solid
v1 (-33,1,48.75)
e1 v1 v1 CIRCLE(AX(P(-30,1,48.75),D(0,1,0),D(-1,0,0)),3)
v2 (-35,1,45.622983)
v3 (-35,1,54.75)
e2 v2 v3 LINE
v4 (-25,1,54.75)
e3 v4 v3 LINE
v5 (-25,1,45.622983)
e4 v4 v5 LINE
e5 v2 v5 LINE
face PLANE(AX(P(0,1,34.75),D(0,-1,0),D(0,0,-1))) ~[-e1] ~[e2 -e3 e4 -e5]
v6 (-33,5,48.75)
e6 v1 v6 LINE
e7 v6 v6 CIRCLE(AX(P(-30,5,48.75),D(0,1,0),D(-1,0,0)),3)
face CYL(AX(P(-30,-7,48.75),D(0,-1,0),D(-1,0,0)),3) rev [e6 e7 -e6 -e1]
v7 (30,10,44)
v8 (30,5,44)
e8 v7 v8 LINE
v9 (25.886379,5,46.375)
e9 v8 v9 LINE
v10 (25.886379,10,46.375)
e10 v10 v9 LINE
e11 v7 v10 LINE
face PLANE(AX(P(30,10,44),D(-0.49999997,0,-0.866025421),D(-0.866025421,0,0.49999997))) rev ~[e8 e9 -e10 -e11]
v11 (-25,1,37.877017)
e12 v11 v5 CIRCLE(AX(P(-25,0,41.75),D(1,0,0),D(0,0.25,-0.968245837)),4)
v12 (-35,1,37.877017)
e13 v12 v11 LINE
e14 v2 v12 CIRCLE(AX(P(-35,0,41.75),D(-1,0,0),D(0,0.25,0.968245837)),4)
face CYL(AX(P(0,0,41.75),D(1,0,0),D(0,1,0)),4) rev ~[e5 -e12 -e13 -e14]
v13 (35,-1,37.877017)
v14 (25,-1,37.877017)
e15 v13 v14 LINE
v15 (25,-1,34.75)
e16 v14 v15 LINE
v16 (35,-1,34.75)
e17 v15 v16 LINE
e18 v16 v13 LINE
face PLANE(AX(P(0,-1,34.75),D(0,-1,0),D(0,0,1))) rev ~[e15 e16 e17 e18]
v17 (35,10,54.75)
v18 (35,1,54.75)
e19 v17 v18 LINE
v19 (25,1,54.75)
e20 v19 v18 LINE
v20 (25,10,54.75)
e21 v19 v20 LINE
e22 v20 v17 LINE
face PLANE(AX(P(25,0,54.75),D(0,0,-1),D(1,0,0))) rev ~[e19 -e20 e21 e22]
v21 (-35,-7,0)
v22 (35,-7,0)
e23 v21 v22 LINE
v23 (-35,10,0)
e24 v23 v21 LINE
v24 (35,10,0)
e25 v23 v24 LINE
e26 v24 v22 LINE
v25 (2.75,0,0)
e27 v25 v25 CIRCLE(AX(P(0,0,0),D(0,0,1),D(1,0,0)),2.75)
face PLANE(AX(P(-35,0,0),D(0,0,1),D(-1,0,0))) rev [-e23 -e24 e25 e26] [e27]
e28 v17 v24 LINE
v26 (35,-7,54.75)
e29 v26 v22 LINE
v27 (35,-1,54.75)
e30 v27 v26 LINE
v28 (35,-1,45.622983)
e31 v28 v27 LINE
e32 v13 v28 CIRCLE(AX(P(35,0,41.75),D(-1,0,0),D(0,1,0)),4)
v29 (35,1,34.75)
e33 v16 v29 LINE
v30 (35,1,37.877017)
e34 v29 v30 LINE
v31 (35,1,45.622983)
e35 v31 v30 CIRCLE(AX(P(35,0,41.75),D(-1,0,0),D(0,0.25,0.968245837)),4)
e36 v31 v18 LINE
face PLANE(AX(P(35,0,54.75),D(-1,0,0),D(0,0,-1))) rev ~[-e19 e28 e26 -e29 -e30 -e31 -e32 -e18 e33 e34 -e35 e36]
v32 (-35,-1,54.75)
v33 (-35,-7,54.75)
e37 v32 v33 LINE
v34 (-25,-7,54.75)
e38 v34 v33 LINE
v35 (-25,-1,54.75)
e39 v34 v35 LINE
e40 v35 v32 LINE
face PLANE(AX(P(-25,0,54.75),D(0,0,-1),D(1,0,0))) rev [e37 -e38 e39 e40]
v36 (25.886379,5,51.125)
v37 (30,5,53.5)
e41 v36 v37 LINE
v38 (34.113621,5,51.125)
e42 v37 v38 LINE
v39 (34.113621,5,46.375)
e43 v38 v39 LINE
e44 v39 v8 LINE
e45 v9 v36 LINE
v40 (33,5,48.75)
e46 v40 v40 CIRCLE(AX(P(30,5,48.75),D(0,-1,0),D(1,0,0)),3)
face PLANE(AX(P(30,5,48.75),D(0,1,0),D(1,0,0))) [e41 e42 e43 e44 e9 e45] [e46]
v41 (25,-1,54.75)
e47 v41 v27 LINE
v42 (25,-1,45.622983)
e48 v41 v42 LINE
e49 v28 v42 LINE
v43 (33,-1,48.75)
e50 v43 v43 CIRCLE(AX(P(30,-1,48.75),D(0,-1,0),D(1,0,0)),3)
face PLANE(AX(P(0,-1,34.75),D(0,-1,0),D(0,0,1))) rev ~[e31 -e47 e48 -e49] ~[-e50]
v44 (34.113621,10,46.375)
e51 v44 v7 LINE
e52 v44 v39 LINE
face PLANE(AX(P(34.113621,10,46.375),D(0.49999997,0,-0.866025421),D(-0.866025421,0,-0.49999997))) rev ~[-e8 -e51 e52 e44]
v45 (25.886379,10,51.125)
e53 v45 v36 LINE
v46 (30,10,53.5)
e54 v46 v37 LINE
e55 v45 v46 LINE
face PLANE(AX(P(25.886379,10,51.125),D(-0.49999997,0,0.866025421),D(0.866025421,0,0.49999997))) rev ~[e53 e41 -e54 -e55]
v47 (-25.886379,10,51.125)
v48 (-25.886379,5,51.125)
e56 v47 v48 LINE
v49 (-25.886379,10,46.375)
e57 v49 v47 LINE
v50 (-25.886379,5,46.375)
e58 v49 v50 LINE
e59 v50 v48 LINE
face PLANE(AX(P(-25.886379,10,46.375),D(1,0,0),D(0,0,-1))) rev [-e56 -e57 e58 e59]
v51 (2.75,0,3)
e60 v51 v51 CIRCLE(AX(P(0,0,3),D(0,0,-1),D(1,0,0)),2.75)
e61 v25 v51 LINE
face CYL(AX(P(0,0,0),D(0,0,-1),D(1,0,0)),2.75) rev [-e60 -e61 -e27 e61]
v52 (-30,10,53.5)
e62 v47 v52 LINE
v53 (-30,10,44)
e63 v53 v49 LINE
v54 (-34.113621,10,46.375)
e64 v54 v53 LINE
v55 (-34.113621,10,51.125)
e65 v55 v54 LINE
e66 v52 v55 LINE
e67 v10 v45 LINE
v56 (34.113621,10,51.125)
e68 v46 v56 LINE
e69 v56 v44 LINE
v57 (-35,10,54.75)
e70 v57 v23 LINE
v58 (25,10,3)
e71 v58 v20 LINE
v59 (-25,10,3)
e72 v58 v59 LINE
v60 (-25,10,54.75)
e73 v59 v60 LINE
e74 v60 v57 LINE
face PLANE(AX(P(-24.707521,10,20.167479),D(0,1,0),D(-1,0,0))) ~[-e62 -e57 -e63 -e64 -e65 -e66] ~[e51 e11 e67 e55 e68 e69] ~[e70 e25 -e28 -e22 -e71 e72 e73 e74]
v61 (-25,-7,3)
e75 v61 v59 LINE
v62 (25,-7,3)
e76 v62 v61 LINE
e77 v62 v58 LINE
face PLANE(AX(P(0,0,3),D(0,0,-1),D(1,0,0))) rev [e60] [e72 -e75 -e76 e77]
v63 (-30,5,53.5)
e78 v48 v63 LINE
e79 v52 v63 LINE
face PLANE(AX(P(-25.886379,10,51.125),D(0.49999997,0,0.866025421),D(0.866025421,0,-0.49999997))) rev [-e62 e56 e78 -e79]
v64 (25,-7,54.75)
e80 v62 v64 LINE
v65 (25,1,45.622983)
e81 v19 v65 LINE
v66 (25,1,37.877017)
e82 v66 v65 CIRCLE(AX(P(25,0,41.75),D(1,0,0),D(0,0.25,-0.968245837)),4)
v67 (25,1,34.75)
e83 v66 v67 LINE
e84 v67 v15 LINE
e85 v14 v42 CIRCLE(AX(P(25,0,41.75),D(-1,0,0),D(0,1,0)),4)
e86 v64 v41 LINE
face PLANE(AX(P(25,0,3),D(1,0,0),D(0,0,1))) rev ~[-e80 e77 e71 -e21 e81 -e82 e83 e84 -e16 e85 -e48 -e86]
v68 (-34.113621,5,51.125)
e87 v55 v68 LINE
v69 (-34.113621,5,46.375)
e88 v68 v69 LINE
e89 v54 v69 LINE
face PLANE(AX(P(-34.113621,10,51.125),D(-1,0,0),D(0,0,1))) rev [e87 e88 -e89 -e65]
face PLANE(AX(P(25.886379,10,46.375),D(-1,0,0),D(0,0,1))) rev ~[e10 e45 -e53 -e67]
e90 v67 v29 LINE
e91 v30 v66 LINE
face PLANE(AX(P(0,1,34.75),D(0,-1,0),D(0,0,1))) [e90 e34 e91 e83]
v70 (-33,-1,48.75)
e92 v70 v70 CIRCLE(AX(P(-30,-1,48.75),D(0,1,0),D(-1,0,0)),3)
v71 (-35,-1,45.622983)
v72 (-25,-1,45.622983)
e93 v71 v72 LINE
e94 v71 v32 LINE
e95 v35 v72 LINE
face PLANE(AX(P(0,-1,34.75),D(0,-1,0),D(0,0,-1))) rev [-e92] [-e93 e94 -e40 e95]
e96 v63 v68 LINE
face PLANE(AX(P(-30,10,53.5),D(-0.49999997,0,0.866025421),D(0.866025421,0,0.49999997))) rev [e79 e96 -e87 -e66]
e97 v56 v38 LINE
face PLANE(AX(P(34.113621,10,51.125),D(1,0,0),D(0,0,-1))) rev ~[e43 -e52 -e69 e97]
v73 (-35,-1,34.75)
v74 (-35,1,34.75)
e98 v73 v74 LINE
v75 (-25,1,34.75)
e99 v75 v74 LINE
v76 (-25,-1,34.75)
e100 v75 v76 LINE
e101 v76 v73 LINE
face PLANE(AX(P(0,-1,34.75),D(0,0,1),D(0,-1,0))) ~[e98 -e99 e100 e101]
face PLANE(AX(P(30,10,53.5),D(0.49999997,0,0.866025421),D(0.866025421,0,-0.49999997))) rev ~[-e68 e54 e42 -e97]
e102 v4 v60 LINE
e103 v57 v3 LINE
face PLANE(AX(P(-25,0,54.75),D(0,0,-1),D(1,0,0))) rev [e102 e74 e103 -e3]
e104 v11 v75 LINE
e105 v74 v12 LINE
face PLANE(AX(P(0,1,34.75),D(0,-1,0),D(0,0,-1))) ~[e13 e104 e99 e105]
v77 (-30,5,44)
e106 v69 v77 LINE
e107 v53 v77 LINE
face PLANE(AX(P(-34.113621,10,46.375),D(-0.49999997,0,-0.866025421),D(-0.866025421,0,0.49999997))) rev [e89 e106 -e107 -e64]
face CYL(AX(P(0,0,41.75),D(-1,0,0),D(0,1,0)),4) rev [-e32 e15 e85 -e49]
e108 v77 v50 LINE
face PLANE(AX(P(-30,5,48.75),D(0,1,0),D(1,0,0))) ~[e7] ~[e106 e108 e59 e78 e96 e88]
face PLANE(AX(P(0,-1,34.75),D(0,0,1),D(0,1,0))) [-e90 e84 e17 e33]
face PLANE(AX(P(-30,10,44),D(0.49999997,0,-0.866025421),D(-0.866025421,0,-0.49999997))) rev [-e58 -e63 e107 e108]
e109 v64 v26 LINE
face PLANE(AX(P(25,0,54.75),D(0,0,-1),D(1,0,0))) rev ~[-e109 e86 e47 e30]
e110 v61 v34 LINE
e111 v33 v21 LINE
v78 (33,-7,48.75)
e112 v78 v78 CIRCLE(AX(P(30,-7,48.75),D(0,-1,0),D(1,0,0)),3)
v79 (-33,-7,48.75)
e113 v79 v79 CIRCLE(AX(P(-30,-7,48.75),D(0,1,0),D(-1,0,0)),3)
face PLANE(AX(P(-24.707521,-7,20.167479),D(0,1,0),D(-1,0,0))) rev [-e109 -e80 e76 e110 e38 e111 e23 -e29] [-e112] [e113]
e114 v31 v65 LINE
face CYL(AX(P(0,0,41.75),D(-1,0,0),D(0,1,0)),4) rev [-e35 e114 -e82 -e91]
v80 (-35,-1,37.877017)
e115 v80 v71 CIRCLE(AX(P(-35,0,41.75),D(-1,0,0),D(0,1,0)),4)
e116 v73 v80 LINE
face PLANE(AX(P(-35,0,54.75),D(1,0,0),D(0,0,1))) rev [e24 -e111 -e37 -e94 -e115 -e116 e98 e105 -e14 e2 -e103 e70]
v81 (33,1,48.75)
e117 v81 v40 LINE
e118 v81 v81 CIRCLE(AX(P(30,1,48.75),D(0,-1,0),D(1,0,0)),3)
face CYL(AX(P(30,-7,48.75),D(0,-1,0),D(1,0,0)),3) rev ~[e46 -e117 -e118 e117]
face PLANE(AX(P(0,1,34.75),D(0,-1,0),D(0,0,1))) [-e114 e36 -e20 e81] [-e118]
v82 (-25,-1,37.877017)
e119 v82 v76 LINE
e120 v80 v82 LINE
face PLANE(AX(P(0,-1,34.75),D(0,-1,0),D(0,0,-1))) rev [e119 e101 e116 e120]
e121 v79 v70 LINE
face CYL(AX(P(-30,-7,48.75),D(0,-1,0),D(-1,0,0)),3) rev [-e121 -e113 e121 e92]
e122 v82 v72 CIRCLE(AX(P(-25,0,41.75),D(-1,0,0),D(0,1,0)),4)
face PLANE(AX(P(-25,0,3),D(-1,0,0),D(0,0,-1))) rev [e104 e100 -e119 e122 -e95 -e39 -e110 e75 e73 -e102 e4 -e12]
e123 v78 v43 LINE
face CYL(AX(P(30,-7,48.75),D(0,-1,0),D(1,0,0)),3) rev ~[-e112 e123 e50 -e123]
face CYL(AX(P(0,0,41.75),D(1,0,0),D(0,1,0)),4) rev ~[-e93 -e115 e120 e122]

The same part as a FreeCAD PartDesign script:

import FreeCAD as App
import Part
import Sketcher
Q = App.Units.Quantity


def add_polygon(sketch, points):
    """Adds a closed chain of lines whose ends are joined by coincident constraints."""
    first, n = sketch.GeometryCount, len(points)
    for a, b in zip(points, points[1:] + points[:1]):
        sketch.addGeometry(Part.LineSegment(App.Vector(*a, 0), App.Vector(*b, 0)), False)
    for i in range(n):
        sketch.addConstraint(Sketcher.Constraint("Coincident", first + i, 2, first + (i + 1) % n, 1))

doc = App.newDocument("Part")
body = doc.addObject("PartDesign::Body", "Body")

sketch1 = body.newObject("Sketcher::SketchObject", "Sketch")
sketch1.AttachmentSupport = (doc.getObject("XZ_Plane"), [""])
sketch1.MapMode = "FlatFace"
add_polygon(sketch1, [(0, 3), (0, 0), (35, 0), (35, 54.75), (25, 54.75), (25, 3)])
sketch1.addConstraint([
    Sketcher.Constraint("Vertical", 0),
    Sketcher.Constraint("Horizontal", 1),
    Sketcher.Constraint("Vertical", 2),
    Sketcher.Constraint("Horizontal", 3),
    Sketcher.Constraint("Vertical", 4),
    Sketcher.Constraint("Horizontal", 5),
    Sketcher.Constraint("Coincident", 0, 2, -1, 1),
    Sketcher.Constraint("DistanceX", 1, 1, 1, 2, Q("35 mm")),
    Sketcher.Constraint("DistanceX", 3, 2, 3, 1, Q("10 mm")),
    Sketcher.Constraint("DistanceY", 0, 2, 0, 1, Q("3 mm")),
    Sketcher.Constraint("DistanceY", 2, 1, 2, 2, Q("54.75 mm")),
])
pad1 = body.newObject("PartDesign::Pad", "Pad")
pad1.Profile = sketch1
pad1.Type = "TwoLengths"
pad1.Length = 7
pad1.Length2 = 10

sketch2 = body.newObject("Sketcher::SketchObject", "Sketch001")
sketch2.AttachmentSupport = (doc.getObject("YZ_Plane"), [""])
sketch2.MapMode = "FlatFace"
sketch2.addGeometry(Part.Circle(App.Vector(0, 41.75, 0), App.Vector(0, 0, 1), 4), False)
sketch2.addConstraint([
    Sketcher.Constraint("PointOnObject", 0, 3, -2),
    Sketcher.Constraint("Diameter", 0, Q("8 mm")),
    Sketcher.Constraint("DistanceY", -1, 1, 0, 3, Q("41.75 mm")),
])
pocket1 = body.newObject("PartDesign::Pocket", "Pocket")
pocket1.Profile = sketch2
pocket1.Type = "ThroughAll"
pocket1.Reversed = True

sketch3 = body.newObject("Sketcher::SketchObject", "Sketch002")
sketch3.AttachmentSupport = (doc.getObject("XZ_Plane"), [""])
sketch3.MapMode = "FlatFace"
sketch3.AttachmentOffset = App.Placement(App.Vector(0, 0, 7), App.Rotation())
sketch3.addGeometry(Part.Circle(App.Vector(30, 48.75, 0), App.Vector(0, 0, 1), 3), False)
sketch3.addConstraint([
    Sketcher.Constraint("Diameter", 0, Q("6 mm")),
    Sketcher.Constraint("DistanceX", -1, 1, 0, 3, Q("30 mm")),
    Sketcher.Constraint("DistanceY", -1, 1, 0, 3, Q("48.75 mm")),
])
pocket2 = body.newObject("PartDesign::Pocket", "Pocket001")
pocket2.Profile = sketch3
pocket2.Type = "ThroughAll"

sketch4 = body.newObject("Sketcher::SketchObject", "Sketch003")
sketch4.AttachmentSupport = (doc.getObject("XZ_Plane"), [""])
sketch4.MapMode = "FlatFace"
sketch4.AttachmentOffset = App.Placement(App.Vector(0, 0, -10), App.Rotation())
add_polygon(sketch4, [(30, 44), (25.886379, 46.375), (25.886379, 51.125), (30, 53.5), (34.113621, 51.125), (34.113621, 46.375)])
sketch4.addConstraint([
    Sketcher.Constraint("Vertical", 1),
    Sketcher.Constraint("Vertical", 4),
    Sketcher.Constraint("Parallel", 0, 3),
    Sketcher.Constraint("Parallel", 2, 5),
    Sketcher.Constraint("Horizontal", 1, 2, 3, 2),
    Sketcher.Constraint("Horizontal", 0, 2, 4, 2),
    Sketcher.Constraint("Vertical", 2, 2, 5, 2),
    Sketcher.Constraint("Angle", 0, Q("150.000002 deg")),
    Sketcher.Constraint("DistanceX", -1, 1, 2, 2, Q("30 mm")),
    Sketcher.Constraint("DistanceY", -1, 1, 5, 2, Q("44 mm")),
    Sketcher.Constraint("DistanceY", 1, 1, 1, 2, Q("4.75 mm")),
    Sketcher.Constraint("DistanceY", -1, 1, 2, 2, Q("53.5 mm")),
])
pocket3 = body.newObject("PartDesign::Pocket", "Pocket002")
pocket3.Profile = sketch4
pocket3.Length = 5
pocket3.Reversed = True

sketch5 = body.newObject("Sketcher::SketchObject", "Sketch004")
sketch5.AttachmentSupport = (doc.getObject("YZ_Plane"), [""])
sketch5.MapMode = "FlatFace"
add_polygon(sketch5, [(-1, 54.75), (-1, 34.75), (1, 34.75), (1, 54.75)])
sketch5.addConstraint([
    Sketcher.Constraint("Vertical", 0),
    Sketcher.Constraint("Horizontal", 1),
    Sketcher.Constraint("Vertical", 2),
    Sketcher.Constraint("Horizontal", 3),
    Sketcher.Constraint("DistanceX", 1, 1, 1, 2, Q("2 mm")),
    Sketcher.Constraint("DistanceY", 0, 2, 0, 1, Q("20 mm")),
    Sketcher.Constraint("DistanceX", 0, 2, -1, 1, Q("1 mm")),
    Sketcher.Constraint("DistanceY", -1, 1, 0, 2, Q("34.75 mm")),
])
pocket4 = body.newObject("PartDesign::Pocket", "Pocket003")
pocket4.Profile = sketch5
pocket4.Type = "ThroughAll"
pocket4.Reversed = True
body2 = doc.addObject("PartDesign::Body", "Body001")
doc.recompute()

body2.BaseFeature = body
doc.recompute()

mirroring = doc.addObject("Part::Mirroring", "Mirroring")
mirroring.Source = body
mirroring.Base = App.Vector(0, 0, 0)
mirroring.Normal = App.Vector(1, 0, 0)
body3 = doc.addObject("PartDesign::Body", "Body002")
body3.BaseFeature = mirroring
boolean = body2.newObject("PartDesign::Boolean", "Boolean")
boolean.Type = "Fuse"
boolean.addObjects([body3])
doc.recompute()

sketch6 = body2.newObject("Sketcher::SketchObject", "Sketch005")
sketch6.AttachmentSupport = (doc.getObject("XY_Plane001"), [""])
sketch6.MapMode = "FlatFace"
sketch6.addGeometry(Part.Circle(App.Vector(0, 0, 0), App.Vector(0, 0, 1), 2.75), False)
sketch6.addConstraint([
    Sketcher.Constraint("Coincident", 0, 3, -1, 1),
    Sketcher.Constraint("Diameter", 0, Q("5.5 mm")),
])
pocket5 = body2.newObject("PartDesign::Pocket", "Pocket004")
pocket5.Profile = sketch6
pocket5.Type = "ThroughAll"
pocket5.Reversed = True
mirroring.Visibility = False

doc.recompute()
